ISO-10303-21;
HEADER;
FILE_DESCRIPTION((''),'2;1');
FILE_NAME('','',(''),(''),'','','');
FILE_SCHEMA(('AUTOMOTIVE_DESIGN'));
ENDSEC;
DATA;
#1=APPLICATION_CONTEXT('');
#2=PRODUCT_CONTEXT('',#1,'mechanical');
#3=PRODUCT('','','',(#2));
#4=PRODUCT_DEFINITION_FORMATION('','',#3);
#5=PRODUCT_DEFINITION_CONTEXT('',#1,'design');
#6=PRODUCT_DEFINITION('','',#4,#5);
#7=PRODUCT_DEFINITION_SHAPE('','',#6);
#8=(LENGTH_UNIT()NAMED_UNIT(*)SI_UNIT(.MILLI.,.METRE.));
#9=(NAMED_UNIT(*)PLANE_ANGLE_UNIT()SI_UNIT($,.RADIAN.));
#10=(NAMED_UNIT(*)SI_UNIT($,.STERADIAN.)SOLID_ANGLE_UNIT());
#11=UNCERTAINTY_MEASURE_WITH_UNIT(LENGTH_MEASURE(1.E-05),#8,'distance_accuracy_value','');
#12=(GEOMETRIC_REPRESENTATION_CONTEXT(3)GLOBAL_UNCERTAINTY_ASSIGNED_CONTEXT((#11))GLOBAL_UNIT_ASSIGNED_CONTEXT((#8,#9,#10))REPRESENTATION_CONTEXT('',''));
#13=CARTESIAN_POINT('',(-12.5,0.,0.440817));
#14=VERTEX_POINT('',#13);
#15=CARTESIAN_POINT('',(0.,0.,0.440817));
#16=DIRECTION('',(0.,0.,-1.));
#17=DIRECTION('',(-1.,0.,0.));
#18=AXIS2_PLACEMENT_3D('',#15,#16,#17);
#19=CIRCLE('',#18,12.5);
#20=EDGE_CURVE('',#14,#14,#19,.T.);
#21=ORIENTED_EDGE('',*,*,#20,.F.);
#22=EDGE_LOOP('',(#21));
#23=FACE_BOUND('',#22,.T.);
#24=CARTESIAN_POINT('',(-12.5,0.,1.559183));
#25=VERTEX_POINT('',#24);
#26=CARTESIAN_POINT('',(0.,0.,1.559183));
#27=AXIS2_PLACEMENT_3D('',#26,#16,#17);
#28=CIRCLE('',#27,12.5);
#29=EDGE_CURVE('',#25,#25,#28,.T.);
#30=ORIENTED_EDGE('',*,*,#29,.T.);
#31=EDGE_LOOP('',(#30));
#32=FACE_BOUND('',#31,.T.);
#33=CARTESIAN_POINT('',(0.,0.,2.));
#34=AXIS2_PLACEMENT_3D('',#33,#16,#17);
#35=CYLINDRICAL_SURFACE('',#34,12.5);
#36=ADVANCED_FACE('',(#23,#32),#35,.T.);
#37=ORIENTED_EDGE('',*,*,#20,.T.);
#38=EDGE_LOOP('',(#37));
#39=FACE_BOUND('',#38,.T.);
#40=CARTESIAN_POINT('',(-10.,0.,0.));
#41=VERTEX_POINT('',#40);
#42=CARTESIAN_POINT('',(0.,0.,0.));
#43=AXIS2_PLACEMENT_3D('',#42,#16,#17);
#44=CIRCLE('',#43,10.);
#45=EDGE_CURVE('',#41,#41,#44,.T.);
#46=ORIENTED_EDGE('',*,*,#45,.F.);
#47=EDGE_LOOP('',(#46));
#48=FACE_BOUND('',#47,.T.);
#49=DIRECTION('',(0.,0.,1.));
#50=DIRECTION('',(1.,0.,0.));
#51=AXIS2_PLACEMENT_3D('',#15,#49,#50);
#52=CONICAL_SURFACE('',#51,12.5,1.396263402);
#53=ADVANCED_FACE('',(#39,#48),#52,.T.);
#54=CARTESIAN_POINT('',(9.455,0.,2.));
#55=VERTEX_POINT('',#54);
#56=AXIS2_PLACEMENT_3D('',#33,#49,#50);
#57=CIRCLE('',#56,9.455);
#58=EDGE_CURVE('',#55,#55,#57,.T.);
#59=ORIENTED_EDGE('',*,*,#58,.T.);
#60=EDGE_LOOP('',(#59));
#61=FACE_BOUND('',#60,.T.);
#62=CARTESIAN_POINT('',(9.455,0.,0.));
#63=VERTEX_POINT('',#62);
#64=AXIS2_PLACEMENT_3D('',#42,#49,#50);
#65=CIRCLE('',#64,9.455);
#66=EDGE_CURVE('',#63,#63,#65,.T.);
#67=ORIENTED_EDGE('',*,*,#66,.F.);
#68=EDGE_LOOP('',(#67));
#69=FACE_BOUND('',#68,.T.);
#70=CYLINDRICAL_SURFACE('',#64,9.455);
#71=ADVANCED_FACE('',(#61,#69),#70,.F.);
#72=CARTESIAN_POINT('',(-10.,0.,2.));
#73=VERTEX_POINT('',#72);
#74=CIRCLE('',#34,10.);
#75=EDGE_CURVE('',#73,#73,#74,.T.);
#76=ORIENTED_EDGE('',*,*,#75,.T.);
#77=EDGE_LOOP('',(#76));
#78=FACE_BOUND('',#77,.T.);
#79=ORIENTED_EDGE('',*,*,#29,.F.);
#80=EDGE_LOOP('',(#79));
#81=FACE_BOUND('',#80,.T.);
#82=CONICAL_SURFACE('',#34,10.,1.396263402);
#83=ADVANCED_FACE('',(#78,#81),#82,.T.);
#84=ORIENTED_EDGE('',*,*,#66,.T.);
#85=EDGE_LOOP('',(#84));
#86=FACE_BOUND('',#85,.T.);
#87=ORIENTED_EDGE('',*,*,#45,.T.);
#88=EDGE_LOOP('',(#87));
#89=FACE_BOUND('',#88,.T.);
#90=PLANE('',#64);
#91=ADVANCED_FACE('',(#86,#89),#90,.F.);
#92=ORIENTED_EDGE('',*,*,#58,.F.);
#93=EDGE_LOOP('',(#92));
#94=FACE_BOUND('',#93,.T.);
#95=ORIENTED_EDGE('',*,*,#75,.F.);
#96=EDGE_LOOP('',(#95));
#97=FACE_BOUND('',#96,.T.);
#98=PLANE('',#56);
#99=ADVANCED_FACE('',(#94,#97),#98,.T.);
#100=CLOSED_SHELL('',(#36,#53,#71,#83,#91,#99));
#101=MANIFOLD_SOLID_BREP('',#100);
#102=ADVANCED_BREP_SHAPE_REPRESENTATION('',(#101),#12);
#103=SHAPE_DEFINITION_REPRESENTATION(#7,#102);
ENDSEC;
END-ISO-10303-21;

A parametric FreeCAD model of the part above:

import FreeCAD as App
import Part
import Sketcher
Q = App.Units.Quantity


def add_polygon(sketch, points):
    """Adds a closed chain of lines whose ends are joined by coincident constraints."""
    first, n = sketch.GeometryCount, len(points)
    for a, b in zip(points, points[1:] + points[:1]):
        sketch.addGeometry(Part.LineSegment(App.Vector(*a, 0), App.Vector(*b, 0)), False)
    for i in range(n):
        sketch.addConstraint(Sketcher.Constraint("Coincident", first + i, 2, first + (i + 1) % n, 1))

doc = App.newDocument("Part")
params = doc.addObject("Spreadsheet::Sheet", "Params")
for row, (alias, value) in enumerate([
    ("sketch1_diameter", "25 mm"),
    ("pad1_length", "2 mm"),
    ("sketch2_diameter", "18.91 mm"),
    ("pocket1_length", "2 mm"),
    ("sketch3_width", "2.5 mm"),
    ("groove_angle", "360 deg"),
], start=1):
    params.set(f"A{row}", alias)
    params.set(f"B{row}", "=" + value)
    params.setAlias(f"B{row}", alias)

body = doc.addObject("PartDesign::Body", "Body")

sketch1 = body.newObject("Sketcher::SketchObject", "Sketch")
sketch1.AttachmentSupport = (doc.getObject("XY_Plane"), [""])
sketch1.MapMode = "FlatFace"
sketch1.addGeometry(Part.Circle(App.Vector(0, 0, 0), App.Vector(0, 0, 1), 12), False)
sketch1.addConstraint(Sketcher.Constraint("Coincident", 0, 3, -1, 1))
sketch1.addConstraint(Sketcher.Constraint("Diameter", 0, 25.0))
sketch1.setExpression("Constraints[1]", "Params.sketch1_diameter")
pad1 = body.newObject("PartDesign::Pad", "Pad")
pad1.Profile = sketch1
pad1.setExpression("Length", "Params.pad1_length")

sketch2 = body.newObject("Sketcher::SketchObject", "Sketch001")
sketch2.AttachmentSupport = (doc.getObject("XY_Plane"), [""])
sketch2.MapMode = "FlatFace"
sketch2.AttachmentOffset = App.Placement(App.Vector(0, 0, 2), App.Rotation())
sketch2.addGeometry(Part.Circle(App.Vector(0, 0, 0), App.Vector(0, 0, 1), 9), False)
sketch2.addConstraint(Sketcher.Constraint("Coincident", 0, 3, -1, 1))
sketch2.addConstraint(Sketcher.Constraint("Diameter", 0, 18.91))
sketch2.setExpression("Constraints[1]", "Params.sketch2_diameter")
pocket1 = body.newObject("PartDesign::Pocket", "Pocket")
pocket1.Profile = sketch2
pocket1.setExpression("Length", "Params.pocket1_length")

sketch3 = body.newObject("Sketcher::SketchObject", "Sketch002")
sketch3.AttachmentSupport = (doc.getObject("YZ_Plane"), [""])
sketch3.MapMode = "FlatFace"
add_polygon(sketch3, [(10, 2), (12.5, 1.56), (12.5, 2)])
add_polygon(sketch3, [(12.5, 0), (12.5, 0.44), (10, 0)])
sketch3.addConstraint(Sketcher.Constraint("Vertical", 1))
sketch3.addConstraint(Sketcher.Constraint("Horizontal", 2))
sketch3.addConstraint(Sketcher.Constraint("Vertical", 3))
sketch3.addConstraint(Sketcher.Constraint("Horizontal", 5))
sketch3.addConstraint(Sketcher.Constraint("PointOnObject", 4, 2, -1))
sketch3.addConstraint(Sketcher.Constraint("Vertical", 1, 2, 3, 2))
sketch3.addConstraint(Sketcher.Constraint("Vertical", 2, 2, 4, 2))
sketch3.addConstraint(Sketcher.Constraint("Equal", 1, 3))
sketch3.addConstraint(Sketcher.Constraint("Angle", 0, Q("-10 deg")))
sketch3.addConstraint(Sketcher.Constraint("DistanceX", 2, 2, 2, 1, 2.5))
sketch3.addConstraint(Sketcher.Constraint("DistanceY", -1, 1, 1, 2, 2.0))
sketch3.addConstraint(Sketcher.Constraint("DistanceX", -1, 1, 2, 2, 10.0))
sketch3.setExpression("Constraints[15]", "Params.sketch3_width")
groove = body.newObject("PartDesign::Groove", "Groove")
groove.Profile = sketch3
groove.ReferenceAxis = (sketch3, ["V_Axis"])
groove.setExpression("Angle", "Params.groove_angle")

doc.recompute()
